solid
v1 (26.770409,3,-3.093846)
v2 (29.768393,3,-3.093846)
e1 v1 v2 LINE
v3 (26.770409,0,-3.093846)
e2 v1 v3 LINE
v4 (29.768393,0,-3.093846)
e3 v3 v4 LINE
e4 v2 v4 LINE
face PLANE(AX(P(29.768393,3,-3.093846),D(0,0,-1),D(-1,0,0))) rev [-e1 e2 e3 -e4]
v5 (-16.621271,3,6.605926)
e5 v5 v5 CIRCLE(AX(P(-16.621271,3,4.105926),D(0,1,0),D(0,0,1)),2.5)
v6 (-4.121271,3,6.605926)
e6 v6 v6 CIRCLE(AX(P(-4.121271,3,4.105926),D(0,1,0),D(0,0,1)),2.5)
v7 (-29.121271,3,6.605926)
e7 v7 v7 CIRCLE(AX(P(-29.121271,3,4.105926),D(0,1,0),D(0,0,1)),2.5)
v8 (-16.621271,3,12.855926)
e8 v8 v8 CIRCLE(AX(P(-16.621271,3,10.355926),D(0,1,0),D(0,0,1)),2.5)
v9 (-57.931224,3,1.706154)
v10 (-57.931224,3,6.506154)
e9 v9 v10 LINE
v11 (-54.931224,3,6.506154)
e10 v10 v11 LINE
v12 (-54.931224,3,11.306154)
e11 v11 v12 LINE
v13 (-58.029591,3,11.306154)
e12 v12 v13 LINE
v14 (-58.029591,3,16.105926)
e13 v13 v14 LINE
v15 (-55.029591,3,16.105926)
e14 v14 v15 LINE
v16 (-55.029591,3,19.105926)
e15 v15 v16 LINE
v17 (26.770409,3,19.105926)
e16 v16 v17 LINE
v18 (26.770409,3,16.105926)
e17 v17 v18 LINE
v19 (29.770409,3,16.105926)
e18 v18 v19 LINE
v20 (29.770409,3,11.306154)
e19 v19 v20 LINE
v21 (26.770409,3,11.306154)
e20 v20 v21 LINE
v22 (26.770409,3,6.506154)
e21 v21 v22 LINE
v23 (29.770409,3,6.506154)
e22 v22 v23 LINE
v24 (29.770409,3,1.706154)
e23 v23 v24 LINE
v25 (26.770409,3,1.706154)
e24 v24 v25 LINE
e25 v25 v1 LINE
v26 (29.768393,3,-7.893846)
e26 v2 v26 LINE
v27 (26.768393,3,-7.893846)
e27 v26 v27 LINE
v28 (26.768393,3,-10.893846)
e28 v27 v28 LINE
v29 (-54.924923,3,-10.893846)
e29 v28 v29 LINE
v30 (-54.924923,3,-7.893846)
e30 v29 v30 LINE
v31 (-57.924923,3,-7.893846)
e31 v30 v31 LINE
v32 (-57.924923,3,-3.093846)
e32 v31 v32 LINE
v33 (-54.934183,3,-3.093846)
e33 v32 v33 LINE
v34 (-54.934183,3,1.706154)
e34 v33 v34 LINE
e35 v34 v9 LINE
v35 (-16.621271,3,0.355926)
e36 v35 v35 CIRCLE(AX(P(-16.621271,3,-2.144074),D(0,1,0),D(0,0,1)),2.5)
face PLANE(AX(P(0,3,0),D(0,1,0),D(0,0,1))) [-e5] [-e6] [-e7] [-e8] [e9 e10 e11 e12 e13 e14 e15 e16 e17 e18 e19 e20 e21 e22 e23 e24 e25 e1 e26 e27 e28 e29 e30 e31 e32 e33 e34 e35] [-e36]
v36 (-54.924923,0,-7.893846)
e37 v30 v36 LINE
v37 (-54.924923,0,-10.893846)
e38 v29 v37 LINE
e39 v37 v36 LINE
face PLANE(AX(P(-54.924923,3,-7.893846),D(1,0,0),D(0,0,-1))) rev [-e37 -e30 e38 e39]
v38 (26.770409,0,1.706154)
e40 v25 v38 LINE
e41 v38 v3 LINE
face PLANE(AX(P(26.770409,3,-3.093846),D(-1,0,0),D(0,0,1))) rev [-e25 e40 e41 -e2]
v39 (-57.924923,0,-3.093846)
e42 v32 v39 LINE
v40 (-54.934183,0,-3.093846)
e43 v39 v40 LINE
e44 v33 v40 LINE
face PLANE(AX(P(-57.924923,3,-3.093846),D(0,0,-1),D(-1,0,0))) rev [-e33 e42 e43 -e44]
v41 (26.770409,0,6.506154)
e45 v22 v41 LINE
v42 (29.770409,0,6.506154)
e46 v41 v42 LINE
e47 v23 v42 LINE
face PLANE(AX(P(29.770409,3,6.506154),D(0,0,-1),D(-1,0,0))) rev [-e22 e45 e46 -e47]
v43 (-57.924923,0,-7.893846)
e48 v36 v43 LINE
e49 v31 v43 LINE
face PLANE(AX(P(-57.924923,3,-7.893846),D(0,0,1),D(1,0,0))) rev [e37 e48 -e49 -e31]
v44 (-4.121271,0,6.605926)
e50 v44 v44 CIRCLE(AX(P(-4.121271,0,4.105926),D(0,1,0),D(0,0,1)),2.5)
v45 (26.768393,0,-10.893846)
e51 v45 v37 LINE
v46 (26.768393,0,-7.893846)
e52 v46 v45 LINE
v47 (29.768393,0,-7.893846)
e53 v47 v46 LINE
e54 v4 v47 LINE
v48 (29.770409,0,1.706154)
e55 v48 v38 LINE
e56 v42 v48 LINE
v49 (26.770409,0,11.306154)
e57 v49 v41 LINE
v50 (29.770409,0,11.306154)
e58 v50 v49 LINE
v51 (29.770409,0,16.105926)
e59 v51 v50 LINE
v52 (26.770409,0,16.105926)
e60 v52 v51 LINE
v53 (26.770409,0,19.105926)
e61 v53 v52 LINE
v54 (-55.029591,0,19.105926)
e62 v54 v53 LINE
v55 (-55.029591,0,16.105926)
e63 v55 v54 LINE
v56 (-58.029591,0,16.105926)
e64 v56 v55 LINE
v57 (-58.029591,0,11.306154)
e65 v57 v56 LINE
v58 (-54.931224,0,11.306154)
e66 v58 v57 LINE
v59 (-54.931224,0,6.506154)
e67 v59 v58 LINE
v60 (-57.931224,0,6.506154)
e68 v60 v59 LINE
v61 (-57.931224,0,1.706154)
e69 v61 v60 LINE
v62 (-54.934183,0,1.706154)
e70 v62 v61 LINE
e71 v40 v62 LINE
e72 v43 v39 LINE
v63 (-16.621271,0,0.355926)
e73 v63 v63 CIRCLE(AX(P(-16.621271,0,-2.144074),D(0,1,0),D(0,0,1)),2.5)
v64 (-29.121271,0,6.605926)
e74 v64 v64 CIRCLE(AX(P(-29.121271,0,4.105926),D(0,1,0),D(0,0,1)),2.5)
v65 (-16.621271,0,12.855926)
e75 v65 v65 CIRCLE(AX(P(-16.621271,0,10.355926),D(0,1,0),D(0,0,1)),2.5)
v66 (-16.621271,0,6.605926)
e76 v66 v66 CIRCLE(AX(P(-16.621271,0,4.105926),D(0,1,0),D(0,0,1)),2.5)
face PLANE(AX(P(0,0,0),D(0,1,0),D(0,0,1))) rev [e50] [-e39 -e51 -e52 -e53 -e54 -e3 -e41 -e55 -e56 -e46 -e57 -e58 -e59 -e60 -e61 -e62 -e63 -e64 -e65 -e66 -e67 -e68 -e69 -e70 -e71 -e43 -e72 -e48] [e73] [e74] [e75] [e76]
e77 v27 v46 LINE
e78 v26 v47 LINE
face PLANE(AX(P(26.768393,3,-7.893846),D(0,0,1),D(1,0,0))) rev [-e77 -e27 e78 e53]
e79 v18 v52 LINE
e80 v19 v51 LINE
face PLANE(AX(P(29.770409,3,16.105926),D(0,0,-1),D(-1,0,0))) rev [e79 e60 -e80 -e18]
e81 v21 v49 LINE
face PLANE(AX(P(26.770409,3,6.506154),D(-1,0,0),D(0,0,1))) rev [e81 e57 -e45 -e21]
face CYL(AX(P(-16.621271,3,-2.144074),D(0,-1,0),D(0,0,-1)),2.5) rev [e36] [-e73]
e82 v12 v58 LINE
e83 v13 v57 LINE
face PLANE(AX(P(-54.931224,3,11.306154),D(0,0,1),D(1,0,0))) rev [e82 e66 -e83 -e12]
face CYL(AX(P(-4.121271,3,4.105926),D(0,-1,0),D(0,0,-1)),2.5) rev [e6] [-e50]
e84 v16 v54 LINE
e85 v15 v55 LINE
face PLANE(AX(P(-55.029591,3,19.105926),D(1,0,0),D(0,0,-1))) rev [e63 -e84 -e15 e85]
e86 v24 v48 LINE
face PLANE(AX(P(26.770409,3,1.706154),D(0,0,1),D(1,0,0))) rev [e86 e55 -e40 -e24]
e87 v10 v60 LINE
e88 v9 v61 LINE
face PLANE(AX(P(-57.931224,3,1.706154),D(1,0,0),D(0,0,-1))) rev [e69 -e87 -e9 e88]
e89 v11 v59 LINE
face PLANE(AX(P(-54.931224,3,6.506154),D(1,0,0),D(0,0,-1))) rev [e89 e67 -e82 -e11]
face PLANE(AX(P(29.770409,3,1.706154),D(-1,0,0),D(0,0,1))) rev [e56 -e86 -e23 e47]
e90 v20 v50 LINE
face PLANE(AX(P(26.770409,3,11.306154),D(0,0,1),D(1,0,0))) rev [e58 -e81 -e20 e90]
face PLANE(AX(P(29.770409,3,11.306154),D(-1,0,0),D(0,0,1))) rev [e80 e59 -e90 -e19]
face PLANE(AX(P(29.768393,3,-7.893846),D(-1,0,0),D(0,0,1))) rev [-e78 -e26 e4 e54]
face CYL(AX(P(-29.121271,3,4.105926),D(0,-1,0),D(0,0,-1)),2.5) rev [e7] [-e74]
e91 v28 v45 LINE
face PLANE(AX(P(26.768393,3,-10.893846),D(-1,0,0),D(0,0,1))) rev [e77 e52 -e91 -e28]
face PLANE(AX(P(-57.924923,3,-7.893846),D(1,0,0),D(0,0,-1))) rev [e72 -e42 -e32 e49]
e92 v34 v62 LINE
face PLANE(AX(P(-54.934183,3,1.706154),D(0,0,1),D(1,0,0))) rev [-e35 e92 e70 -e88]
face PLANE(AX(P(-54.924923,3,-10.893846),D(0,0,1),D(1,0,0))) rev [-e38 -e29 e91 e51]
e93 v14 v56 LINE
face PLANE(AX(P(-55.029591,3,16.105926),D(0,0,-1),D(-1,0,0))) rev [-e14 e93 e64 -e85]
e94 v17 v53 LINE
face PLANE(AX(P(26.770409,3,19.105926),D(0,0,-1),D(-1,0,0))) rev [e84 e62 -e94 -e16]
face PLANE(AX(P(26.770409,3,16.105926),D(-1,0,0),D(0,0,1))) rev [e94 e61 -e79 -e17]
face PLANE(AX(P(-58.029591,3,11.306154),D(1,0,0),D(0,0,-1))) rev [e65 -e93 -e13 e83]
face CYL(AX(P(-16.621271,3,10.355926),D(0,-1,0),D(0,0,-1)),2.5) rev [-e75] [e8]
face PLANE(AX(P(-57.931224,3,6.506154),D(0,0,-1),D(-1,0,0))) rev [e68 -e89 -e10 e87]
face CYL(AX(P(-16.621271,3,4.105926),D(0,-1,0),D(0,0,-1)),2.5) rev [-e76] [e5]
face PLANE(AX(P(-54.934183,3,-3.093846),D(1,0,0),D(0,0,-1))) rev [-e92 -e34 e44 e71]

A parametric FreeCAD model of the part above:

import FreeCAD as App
import Part
import Sketcher

V = App.Vector


def add_polygon(sketch, points):
    """Adds a closed chain of lines whose ends are joined by coincident constraints."""
    first, n = sketch.GeometryCount, len(points)
    for a, b in zip(points, points[1:] + points[:1]):
        sketch.addGeometry(Part.LineSegment(App.Vector(*a, 0), App.Vector(*b, 0)), False)
    for i in range(n):
        sketch.addConstraint(Sketcher.Constraint("Coincident", first + i, 2, first + (i + 1) % n, 1))

doc = App.newDocument("Part")
body = doc.addObject("PartDesign::Body", "Body")

# Sketch on XZ plane
sketch1 = body.newObject("Sketcher::SketchObject", "Sketch")
sketch1.AttachmentSupport = (doc.getObject("XZ_Plane"), [""])
sketch1.MapMode = "FlatFace"
add_polygon(sketch1, [(-54.9, -7.9), (-57.9, -7.9), (-57.9, -3.1), (-54.9, -3.1), (-54.9, 1.7), (-57.9, 1.7), (-57.9, 6.5), (-54.9, 6.5), (-54.9, 11.3), (-58, 11.3), (-58, 16.1), (-55, 16.1), (-55, 19.1), (26.8, 19.1), (26.8, 16.1), (29.8, 16.1), (29.8, 11.3), (26.8, 11.3), (26.8, 6.5), (29.8, 6.5), (29.8, 1.7), (26.8, 1.7), (26.8, -3.1), (29.8, -3.1), (29.8, -7.9), (26.8, -7.9), (26.8, -10.9), (-54.9, -10.9)])  # lines 0-27
sketch1.addGeometry(Part.Circle(V(-16.6, 10.4, 0), V(0, 0, 1), 2.5), False)  # 28
sketch1.addGeometry(Part.Circle(V(-4.1, 4.1, 0), V(0, 0, 1), 2.5), False)  # 29
sketch1.addGeometry(Part.Circle(V(-16.6, 4.1, 0), V(0, 0, 1), 2.5), False)  # 30
sketch1.addGeometry(Part.Circle(V(-16.6, -2.1, 0), V(0, 0, 1), 2.5), False)  # 31
sketch1.addGeometry(Part.Circle(V(-29.1, 4.1, 0), V(0, 0, 1), 2.5), False)  # 32
sketch1.addConstraint([
    Sketcher.Constraint("Horizontal", 0),
    Sketcher.Constraint("Vertical", 1),
    Sketcher.Constraint("Horizontal", 2),
    Sketcher.Constraint("Vertical", 3),
    Sketcher.Constraint("Horizontal", 4),
    Sketcher.Constraint("Vertical", 5),
    Sketcher.Constraint("Horizontal", 6),
    Sketcher.Constraint("Vertical", 7),
    Sketcher.Constraint("Horizontal", 8),
    Sketcher.Constraint("Vertical", 9),
    Sketcher.Constraint("Horizontal", 10),
    Sketcher.Constraint("Vertical", 11),
    Sketcher.Constraint("Horizontal", 12),
    Sketcher.Constraint("Vertical", 13),
    Sketcher.Constraint("Horizontal", 14),
    Sketcher.Constraint("Vertical", 15),
    Sketcher.Constraint("Horizontal", 16),
    Sketcher.Constraint("Vertical", 17),
    Sketcher.Constraint("Horizontal", 18),
    Sketcher.Constraint("Vertical", 19),
    Sketcher.Constraint("Horizontal", 20),
    Sketcher.Constraint("Vertical", 21),
    Sketcher.Constraint("Horizontal", 22),
    Sketcher.Constraint("Vertical", 23),
    Sketcher.Constraint("Horizontal", 24),
    Sketcher.Constraint("Vertical", 25),
    Sketcher.Constraint("Horizontal", 26),
    Sketcher.Constraint("Vertical", 27),
    Sketcher.Constraint("Equal", 28, 29),
    Sketcher.Constraint("Equal", 29, 30),
    Sketcher.Constraint("Equal", 30, 31),
    Sketcher.Constraint("Equal", 31, 32),
    Sketcher.Constraint("Horizontal", 29, 3, 30, 3),
    Sketcher.Constraint("Horizontal", 30, 3, 32, 3),
    Sketcher.Constraint("Horizontal", 10, 2, 13, 2),
    Sketcher.Constraint("Horizontal", 8, 2, 15, 2),
    Sketcher.Constraint("Horizontal", 6, 2, 17, 2),
    Sketcher.Constraint("Horizontal", 4, 2, 19, 2),
    Sketcher.Constraint("Horizontal", 2, 2, 21, 2),
    Sketcher.Constraint("Horizontal", 0, 2, 23, 2),
    Sketcher.Constraint("Vertical", 28, 3, 30, 3),
    Sketcher.Constraint("Vertical", 30, 3, 31, 3),
    Sketcher.Constraint("Vertical", 13, 2, 16, 2),
    Sketcher.Constraint("Vertical", 15, 2, 18, 2),
    Sketcher.Constraint("Vertical", 17, 2, 20, 2),
    Sketcher.Constraint("Equal", 0, 6),
    Sketcher.Constraint("Equal", 6, 10),
    Sketcher.Constraint("Equal", 10, 14),
    Sketcher.Constraint("Equal", 20, 24),
    Sketcher.Constraint("Equal", 1, 3),
    Sketcher.Constraint("Equal", 3, 5),
    Sketcher.Constraint("Equal", 5, 7),
    Sketcher.Constraint("Equal", 24, 11),
    Sketcher.Constraint("Equal", 13, 25),
    Sketcher.Constraint("Diameter", 28, 5.0),
    Sketcher.Constraint("DistanceX", 0, 2, 0, 1, 3.0),
    Sketcher.Constraint("DistanceX", 12, 1, 12, 2, 81.8),
    Sketcher.Constraint("DistanceY", 1, 1, 1, 2, 4.8),
    Sketcher.Constraint("DistanceX", 32, 3, 29, 3, 25.0),
    Sketcher.Constraint("DistanceY", 29, 3, 12, 2, 15.0),
    Sketcher.Constraint("DistanceX", 28, 3, 29, 3, 12.5),
    Sketcher.Constraint("DistanceY", 31, 3, 28, 3, 12.5),
    Sketcher.Constraint("DistanceY", 29, 3, 28, 3, 6.25),
    Sketcher.Constraint("DistanceX", 2, 1, 2, 2, 2.990741),
    Sketcher.Constraint("DistanceX", 4, 2, 4, 1, 2.997041),
    Sketcher.Constraint("DistanceY", 9, 1, 9, 2, 4.799772),
    Sketcher.Constraint("DistanceX", 8, 2, 8, 1, 3.098367),
    Sketcher.Constraint("DistanceX", 22, 1, 22, 2, 2.997984),
    Sketcher.Constraint("DistanceX", 28, 3, -1, 1, 16.621271),
    Sketcher.Constraint("DistanceX", 8, 2, -1, 1, 58.029591),
    Sketcher.Constraint("DistanceY", -1, 1, 28, 3, 10.355926),
])
pad1 = body.newObject("PartDesign::Pad", "Pad")
pad1.Profile = sketch1
pad1.Length = 3
pad1.Reversed = True

doc.recompute()
